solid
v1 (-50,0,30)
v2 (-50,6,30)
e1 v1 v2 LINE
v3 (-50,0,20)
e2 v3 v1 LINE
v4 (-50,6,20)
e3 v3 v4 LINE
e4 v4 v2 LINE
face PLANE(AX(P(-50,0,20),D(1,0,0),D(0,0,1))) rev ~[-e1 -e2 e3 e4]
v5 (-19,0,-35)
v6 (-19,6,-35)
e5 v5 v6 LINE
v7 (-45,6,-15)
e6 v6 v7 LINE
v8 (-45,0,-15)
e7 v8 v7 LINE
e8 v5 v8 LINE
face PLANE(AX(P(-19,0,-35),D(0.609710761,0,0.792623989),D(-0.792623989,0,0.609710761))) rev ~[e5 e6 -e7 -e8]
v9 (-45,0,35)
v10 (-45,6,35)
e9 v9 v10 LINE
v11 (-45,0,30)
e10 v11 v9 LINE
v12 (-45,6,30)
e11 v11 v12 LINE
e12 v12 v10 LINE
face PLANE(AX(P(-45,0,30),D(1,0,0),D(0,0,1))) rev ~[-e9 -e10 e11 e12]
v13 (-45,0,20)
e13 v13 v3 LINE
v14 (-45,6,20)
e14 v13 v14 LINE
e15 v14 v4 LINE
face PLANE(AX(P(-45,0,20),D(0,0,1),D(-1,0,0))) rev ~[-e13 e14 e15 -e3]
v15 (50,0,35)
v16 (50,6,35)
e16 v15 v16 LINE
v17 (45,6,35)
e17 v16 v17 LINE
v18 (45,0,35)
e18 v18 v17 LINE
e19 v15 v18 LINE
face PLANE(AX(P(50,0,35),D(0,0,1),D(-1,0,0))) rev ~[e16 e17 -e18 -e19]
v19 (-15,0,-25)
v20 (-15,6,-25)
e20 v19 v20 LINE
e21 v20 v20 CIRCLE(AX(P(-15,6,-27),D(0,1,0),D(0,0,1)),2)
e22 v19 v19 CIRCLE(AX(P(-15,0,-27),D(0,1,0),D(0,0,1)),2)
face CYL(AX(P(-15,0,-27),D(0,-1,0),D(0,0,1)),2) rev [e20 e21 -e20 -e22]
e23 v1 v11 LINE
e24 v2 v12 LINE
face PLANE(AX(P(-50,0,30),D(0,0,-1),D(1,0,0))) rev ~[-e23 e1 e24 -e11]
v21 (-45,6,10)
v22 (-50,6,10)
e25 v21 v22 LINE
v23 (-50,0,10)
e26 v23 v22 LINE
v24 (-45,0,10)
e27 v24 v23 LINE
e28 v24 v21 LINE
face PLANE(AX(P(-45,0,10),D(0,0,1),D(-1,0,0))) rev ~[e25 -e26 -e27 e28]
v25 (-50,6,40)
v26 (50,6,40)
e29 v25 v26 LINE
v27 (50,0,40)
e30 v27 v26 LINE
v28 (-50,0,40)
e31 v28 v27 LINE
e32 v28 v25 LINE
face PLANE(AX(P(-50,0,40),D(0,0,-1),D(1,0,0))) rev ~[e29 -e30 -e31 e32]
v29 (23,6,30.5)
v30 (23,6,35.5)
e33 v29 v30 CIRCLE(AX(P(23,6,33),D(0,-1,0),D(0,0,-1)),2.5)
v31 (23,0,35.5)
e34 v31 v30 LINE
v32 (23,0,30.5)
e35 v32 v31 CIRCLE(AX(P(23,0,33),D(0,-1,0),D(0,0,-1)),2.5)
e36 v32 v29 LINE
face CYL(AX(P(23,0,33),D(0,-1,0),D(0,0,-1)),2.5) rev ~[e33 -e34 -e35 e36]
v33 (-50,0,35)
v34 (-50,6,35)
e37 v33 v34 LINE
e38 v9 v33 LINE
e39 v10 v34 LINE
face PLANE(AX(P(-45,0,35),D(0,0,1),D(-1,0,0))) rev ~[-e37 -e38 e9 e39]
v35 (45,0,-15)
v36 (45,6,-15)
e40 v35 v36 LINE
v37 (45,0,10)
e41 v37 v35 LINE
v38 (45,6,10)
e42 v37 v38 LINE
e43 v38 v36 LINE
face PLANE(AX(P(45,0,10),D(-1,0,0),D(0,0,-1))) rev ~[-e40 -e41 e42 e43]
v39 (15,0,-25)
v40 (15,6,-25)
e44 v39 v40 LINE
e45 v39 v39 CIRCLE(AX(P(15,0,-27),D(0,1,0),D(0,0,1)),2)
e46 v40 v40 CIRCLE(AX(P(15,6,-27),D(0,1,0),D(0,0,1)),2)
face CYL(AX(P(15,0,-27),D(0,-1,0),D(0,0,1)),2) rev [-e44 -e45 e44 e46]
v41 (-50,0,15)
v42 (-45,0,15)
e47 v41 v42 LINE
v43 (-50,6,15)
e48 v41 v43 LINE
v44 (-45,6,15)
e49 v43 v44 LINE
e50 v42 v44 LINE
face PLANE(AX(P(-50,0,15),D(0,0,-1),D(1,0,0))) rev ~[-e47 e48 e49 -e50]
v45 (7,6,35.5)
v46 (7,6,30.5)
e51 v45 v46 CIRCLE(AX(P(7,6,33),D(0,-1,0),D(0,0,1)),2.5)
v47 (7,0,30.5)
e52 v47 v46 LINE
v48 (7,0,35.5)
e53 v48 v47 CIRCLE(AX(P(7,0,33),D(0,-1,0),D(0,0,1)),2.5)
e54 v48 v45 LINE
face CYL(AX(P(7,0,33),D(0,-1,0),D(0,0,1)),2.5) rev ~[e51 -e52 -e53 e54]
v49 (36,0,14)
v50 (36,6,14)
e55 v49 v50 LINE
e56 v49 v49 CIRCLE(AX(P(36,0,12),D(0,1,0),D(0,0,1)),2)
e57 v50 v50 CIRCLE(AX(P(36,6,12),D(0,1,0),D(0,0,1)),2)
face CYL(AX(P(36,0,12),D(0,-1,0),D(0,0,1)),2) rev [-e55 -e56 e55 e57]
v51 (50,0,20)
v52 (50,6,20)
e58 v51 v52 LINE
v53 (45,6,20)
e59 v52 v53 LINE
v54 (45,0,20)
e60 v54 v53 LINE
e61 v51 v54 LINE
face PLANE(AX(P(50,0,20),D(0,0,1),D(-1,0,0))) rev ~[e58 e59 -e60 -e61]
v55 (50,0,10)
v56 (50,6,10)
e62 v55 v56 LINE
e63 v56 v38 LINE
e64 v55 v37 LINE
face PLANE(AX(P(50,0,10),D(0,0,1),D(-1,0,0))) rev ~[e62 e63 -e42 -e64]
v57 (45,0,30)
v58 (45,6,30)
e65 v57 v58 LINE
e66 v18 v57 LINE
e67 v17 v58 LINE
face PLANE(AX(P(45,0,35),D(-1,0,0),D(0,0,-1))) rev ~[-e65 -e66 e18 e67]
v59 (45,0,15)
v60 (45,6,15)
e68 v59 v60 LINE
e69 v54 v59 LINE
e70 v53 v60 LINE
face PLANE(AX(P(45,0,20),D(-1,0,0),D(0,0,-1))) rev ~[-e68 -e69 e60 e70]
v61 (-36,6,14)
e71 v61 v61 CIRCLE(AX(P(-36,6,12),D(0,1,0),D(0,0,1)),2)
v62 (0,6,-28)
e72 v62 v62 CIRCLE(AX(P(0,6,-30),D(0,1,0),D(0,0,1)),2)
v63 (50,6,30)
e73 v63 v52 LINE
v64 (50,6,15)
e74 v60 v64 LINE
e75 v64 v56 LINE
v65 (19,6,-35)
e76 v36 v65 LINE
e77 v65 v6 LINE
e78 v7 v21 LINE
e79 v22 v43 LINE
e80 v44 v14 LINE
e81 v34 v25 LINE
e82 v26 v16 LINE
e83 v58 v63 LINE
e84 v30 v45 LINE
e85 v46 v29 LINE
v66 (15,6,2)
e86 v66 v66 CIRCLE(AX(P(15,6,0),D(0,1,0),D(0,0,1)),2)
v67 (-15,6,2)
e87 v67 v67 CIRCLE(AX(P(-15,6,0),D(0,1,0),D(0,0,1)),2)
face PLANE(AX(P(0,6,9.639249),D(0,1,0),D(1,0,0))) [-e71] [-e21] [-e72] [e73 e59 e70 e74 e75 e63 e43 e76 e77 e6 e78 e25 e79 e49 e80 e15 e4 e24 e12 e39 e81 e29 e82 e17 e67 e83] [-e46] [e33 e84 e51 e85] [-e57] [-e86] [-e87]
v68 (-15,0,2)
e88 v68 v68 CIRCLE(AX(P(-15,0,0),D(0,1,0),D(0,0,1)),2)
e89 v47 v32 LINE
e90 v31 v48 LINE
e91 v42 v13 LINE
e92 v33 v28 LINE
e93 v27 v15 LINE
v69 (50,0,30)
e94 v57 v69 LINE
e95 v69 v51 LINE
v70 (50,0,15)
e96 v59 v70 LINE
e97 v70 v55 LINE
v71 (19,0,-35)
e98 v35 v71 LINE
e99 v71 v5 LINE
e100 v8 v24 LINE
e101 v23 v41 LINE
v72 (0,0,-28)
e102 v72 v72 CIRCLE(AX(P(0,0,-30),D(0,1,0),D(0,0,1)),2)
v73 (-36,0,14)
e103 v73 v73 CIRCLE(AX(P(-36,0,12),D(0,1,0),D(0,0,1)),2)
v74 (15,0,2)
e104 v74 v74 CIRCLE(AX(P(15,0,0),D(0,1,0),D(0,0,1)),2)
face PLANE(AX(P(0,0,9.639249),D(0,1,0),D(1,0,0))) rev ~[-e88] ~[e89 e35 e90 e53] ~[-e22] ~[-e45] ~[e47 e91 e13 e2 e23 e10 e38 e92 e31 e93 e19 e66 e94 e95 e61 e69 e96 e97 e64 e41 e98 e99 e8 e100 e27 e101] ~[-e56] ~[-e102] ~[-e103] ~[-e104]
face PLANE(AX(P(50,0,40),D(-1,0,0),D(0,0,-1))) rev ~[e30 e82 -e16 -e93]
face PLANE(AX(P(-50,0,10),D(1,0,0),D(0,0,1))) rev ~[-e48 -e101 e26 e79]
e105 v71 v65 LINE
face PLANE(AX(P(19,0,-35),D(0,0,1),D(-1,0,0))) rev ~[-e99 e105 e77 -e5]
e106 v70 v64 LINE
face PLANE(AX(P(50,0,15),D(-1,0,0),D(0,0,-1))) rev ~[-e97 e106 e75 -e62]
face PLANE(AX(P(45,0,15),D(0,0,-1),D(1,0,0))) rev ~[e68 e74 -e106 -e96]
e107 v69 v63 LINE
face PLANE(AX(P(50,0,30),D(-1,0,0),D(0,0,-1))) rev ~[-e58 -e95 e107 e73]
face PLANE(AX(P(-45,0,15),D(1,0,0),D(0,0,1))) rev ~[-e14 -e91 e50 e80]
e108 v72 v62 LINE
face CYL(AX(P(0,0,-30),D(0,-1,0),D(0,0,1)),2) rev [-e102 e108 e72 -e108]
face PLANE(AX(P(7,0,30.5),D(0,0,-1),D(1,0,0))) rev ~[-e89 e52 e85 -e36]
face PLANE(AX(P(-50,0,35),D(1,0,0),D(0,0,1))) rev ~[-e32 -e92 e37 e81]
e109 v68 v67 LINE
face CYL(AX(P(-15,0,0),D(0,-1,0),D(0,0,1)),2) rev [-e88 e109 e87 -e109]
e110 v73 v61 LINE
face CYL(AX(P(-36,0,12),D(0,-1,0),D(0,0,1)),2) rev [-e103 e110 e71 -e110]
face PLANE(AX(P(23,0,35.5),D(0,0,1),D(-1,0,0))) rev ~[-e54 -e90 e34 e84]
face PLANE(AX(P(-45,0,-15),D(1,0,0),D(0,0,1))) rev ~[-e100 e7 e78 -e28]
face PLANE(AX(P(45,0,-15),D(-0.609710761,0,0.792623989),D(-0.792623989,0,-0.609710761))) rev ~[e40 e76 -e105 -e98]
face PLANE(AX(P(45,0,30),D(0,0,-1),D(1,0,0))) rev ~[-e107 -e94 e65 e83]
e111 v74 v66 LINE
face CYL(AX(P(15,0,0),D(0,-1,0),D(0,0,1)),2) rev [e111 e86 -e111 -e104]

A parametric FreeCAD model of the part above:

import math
import FreeCAD as App
import Part
import Sketcher
Q = App.Units.Quantity


def add_polygon(sketch, points):
    """Adds a closed chain of lines whose ends are joined by coincident constraints."""
    first, n = sketch.GeometryCount, len(points)
    for a, b in zip(points, points[1:] + points[:1]):
        sketch.addGeometry(Part.LineSegment(App.Vector(*a, 0), App.Vector(*b, 0)), False)
    for i in range(n):
        sketch.addConstraint(Sketcher.Constraint("Coincident", first + i, 2, first + (i + 1) % n, 1))

doc = App.newDocument("Part")
params = doc.addObject("Spreadsheet::Sheet", "Params")
for row, (alias, value) in enumerate([
    ("sketch1_diameter", "4 mm"),
    ("sketch1_radius", "2.5 mm"),
    ("sketch1_width", "5 mm"),
    ("sketch1_width2", "100 mm"),
    ("sketch1_width3", "38 mm"),
    ("pad1_length", "6 mm"),
], start=1):
    params.set(f"A{row}", alias)
    params.set(f"B{row}", "=" + value)
    params.setAlias(f"B{row}", alias)

body = doc.addObject("PartDesign::Body", "Body")

# Sketch on XZ plane
sketch1 = body.newObject("Sketcher::SketchObject", "Sketch")
sketch1.AttachmentSupport = (doc.getObject("XZ_Plane"), [""])
sketch1.MapMode = "FlatFace"
add_polygon(sketch1, [(-45, -15), (-45, 10), (-50, 10), (-50, 15), (-45, 15), (-45, 20), (-50, 20), (-50, 30), (-45, 30), (-45, 35), (-50, 35), (-50, 40), (50, 40), (50, 35), (45, 35), (45, 30), (50, 30), (50, 20), (45, 20), (45, 15), (50, 15), (50, 10), (45, 10), (45, -15), (19, -35), (-19, -35)])  # lines 0-25
sketch1.addGeometry(Part.Circle(App.Vector(-36, 12, 0), App.Vector(0, 0, 1), 2), False)  # 26
sketch1.addGeometry(Part.ArcOfCircle(Part.Circle(App.Vector(7, 33, 0), App.Vector(0, 0, 1), 2.5), math.radians(90), math.radians(270)), False)  # 27
sketch1.addGeometry(Part.LineSegment(App.Vector(7, 30.5, 0), App.Vector(23, 30.5, 0)), False)  # 28
sketch1.addGeometry(Part.ArcOfCircle(Part.Circle(App.Vector(23, 33, 0), App.Vector(0, 0, 1), 2.5), math.radians(-90), math.radians(90)), False)  # 29
sketch1.addGeometry(Part.LineSegment(App.Vector(23, 35.5, 0), App.Vector(7, 35.5, 0)), False)  # 30
sketch1.addGeometry(Part.Circle(App.Vector(36, 12, 0), App.Vector(0, 0, 1), 2), False)  # 31
sketch1.addGeometry(Part.Circle(App.Vector(-15, 0, 0), App.Vector(0, 0, 1), 2), False)  # 32
sketch1.addGeometry(Part.Circle(App.Vector(-15, -27, 0), App.Vector(0, 0, 1), 2), False)  # 33
sketch1.addGeometry(Part.Circle(App.Vector(15, 0, 0), App.Vector(0, 0, 1), 2), False)  # 34
sketch1.addGeometry(Part.Circle(App.Vector(0, -30, 0), App.Vector(0, 0, 1), 2), False)  # 35
sketch1.addGeometry(Part.Circle(App.Vector(15, -27, 0), App.Vector(0, 0, 1), 2), False)  # 36
sketch1.addConstraint([
    Sketcher.Constraint("Tangent", 27, 2, 28, 1),
    Sketcher.Constraint("Tangent", 28, 2, 29, 1),
    Sketcher.Constraint("Tangent", 29, 2, 30, 1),
    Sketcher.Constraint("Tangent", 30, 2, 27, 1),
    Sketcher.Constraint("Vertical", 0),
    Sketcher.Constraint("Horizontal", 1),
    Sketcher.Constraint("Vertical", 2),
    Sketcher.Constraint("Horizontal", 3),
    Sketcher.Constraint("Vertical", 4),
    Sketcher.Constraint("Horizontal", 5),
    Sketcher.Constraint("Vertical", 6),
    Sketcher.Constraint("Horizontal", 7),
    Sketcher.Constraint("Vertical", 8),
    Sketcher.Constraint("Horizontal", 9),
    Sketcher.Constraint("Vertical", 10),
    Sketcher.Constraint("Horizontal", 11),
    Sketcher.Constraint("Vertical", 12),
    Sketcher.Constraint("Horizontal", 13),
    Sketcher.Constraint("Vertical", 14),
    Sketcher.Constraint("Horizontal", 15),
    Sketcher.Constraint("Vertical", 16),
    Sketcher.Constraint("Horizontal", 17),
    Sketcher.Constraint("Vertical", 18),
    Sketcher.Constraint("Horizontal", 19),
    Sketcher.Constraint("Vertical", 20),
    Sketcher.Constraint("Horizontal", 21),
    Sketcher.Constraint("Vertical", 22),
    Sketcher.Constraint("Horizontal", 24),
    Sketcher.Constraint("Horizontal", 28),
    Sketcher.Constraint("Horizontal", 30),
    Sketcher.Constraint("Equal", 26, 31),
    Sketcher.Constraint("Equal", 31, 32),
    Sketcher.Constraint("Equal", 32, 33),
    Sketcher.Constraint("Equal", 33, 34),
    Sketcher.Constraint("Equal", 34, 35),
    Sketcher.Constraint("Equal", 35, 36),
    Sketcher.Constraint("Symmetric", 32, 3, 34, 3, -1, 1),
    Sketcher.Constraint("Symmetric", 3, 2, 22, 2, -1, 1),
    Sketcher.Constraint("Symmetric", 18, 2, 25, 2, -1, 1),
    Sketcher.Constraint("Symmetric", 26, 3, 31, 3, -2),
    Sketcher.Constraint("Symmetric", 33, 3, 36, 3, -2),
    Sketcher.Constraint("Symmetric", 9, 2, 12, 2, -2),
    Sketcher.Constraint("Symmetric", 7, 2, 14, 2, -2),
    Sketcher.Constraint("Symmetric", 5, 2, 16, 2, -2),
    Sketcher.Constraint("Symmetric", 3, 2, 18, 2, -2),
    Sketcher.Constraint("Symmetric", 1, 2, 20, 2, -2),
    Sketcher.Constraint("PointOnObject", 32, 3, -1),
    Sketcher.Constraint("PointOnObject", 35, 3, -2),
    Sketcher.Constraint("Vertical", 32, 3, 33, 3),
    Sketcher.Constraint("Vertical", 2, 2, 5, 2),
    Sketcher.Constraint("Vertical", 4, 2, 7, 2),
    Sketcher.Constraint("Vertical", 6, 2, 9, 2),
    Sketcher.Constraint("Equal", 21, 2),
    Sketcher.Constraint("Equal", 2, 4),
    Sketcher.Constraint("Equal", 4, 8),
    Sketcher.Constraint("Equal", 8, 10),
    Sketcher.Constraint("Equal", 23, 25),
    Sketcher.Constraint("Diameter", 26, Q("4 mm")),
    Sketcher.Constraint("Radius", 27, Q("2.5 mm")),
    Sketcher.Constraint("DistanceX", 1, 2, 1, 1, Q("5 mm")),
    Sketcher.Constraint("DistanceX", 11, 1, 11, 2, Q("100 mm")),
    Sketcher.Constraint("DistanceX", 24, 2, 24, 1, Q("38 mm")),
    Sketcher.Constraint("DistanceX", 28, 1, 28, 2, Q("16 mm")),
    Sketcher.Constraint("DistanceY", 0, 1, 0, 2, Q("25 mm")),
    Sketcher.Constraint("DistanceY", 6, 1, 6, 2, Q("10 mm")),
    Sketcher.Constraint("DistanceX", 26, 3, -1, 1, Q("36 mm")),
    Sketcher.Constraint("DistanceY", -1, 1, 26, 3, Q("12 mm")),
    Sketcher.Constraint("DistanceX", -1, 1, 27, 3, Q("7 mm")),
    Sketcher.Constraint("DistanceY", -1, 1, 27, 3, Q("33 mm")),
    Sketcher.Constraint("DistanceX", 32, 3, -1, 1, Q("15 mm")),
    Sketcher.Constraint("DistanceY", 33, 3, -1, 1, Q("27 mm")),
    Sketcher.Constraint("DistanceY", 35, 3, -1, 1, Q("30 mm")),
    Sketcher.Constraint("DistanceY", 23, 2, -1, 1, Q("35 mm")),
])
sketch1.setExpression("Constraints[83]", "Params.sketch1_diameter")
sketch1.setExpression("Constraints[84]", "Params.sketch1_radius")
sketch1.setExpression("Constraints[85]", "Params.sketch1_width")
sketch1.setExpression("Constraints[86]", "Params.sketch1_width2")
sketch1.setExpression("Constraints[87]", "Params.sketch1_width3")
pad1 = body.newObject("PartDesign::Pad", "Pad")
pad1.Profile = sketch1
pad1.setExpression("Length", "Params.pad1_length")
pad1.Reversed = True

doc.recompute()
